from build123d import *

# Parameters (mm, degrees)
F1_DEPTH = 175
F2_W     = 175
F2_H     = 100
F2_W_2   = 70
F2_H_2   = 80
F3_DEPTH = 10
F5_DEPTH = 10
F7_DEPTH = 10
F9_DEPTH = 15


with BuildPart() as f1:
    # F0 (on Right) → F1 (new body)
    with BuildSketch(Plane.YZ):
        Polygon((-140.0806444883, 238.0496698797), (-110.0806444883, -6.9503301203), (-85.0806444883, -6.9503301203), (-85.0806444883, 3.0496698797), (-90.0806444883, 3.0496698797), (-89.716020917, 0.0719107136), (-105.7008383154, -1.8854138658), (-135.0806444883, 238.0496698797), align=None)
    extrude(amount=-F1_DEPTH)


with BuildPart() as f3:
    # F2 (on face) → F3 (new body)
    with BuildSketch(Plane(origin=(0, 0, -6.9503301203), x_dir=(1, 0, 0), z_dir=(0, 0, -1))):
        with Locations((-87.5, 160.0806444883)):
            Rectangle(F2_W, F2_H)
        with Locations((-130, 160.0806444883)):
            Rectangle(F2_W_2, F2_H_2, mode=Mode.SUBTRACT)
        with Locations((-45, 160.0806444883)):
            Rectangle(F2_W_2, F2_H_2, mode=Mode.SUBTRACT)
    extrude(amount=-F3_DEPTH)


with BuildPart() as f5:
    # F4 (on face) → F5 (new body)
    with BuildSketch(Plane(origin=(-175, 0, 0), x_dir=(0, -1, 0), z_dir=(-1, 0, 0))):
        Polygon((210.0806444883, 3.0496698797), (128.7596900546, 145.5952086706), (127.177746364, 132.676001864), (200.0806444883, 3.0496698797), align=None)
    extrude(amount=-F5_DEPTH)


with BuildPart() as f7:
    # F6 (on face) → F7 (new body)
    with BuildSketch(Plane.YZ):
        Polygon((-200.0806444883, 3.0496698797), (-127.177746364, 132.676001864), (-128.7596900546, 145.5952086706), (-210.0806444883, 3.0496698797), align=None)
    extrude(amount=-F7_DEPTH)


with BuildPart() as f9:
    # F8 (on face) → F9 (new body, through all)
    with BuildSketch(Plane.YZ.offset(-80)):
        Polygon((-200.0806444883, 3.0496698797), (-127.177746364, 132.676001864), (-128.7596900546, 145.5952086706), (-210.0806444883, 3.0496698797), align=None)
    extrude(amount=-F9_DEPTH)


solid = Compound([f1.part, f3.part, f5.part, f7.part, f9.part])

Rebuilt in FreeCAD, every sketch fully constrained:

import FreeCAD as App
import Part
import Sketcher

doc = App.newDocument("Part")
body = doc.addObject("PartDesign::Body", "Body")

sketch1 = body.newObject("Sketcher::SketchObject", "Sketch")
sketch1.AttachmentSupport = (doc.getObject("YZ_Plane"), [""])
sketch1.MapMode = "FlatFace"
sketch1.addGeometry([
    Part.LineSegment(App.Vector(-140.1, 238, 0), App.Vector(-110.1, -7, 0)),
    Part.LineSegment(App.Vector(-110.1, -7, 0), App.Vector(-85.1, -7, 0)),
    Part.LineSegment(App.Vector(-85.1, -7, 0), App.Vector(-85.1, 3, 0)),
    Part.LineSegment(App.Vector(-85.1, 3, 0), App.Vector(-90.1, 3, 0)),
    Part.LineSegment(App.Vector(-90.1, 3, 0), App.Vector(-89.7, 0.1, 0)),
    Part.LineSegment(App.Vector(-89.7, 0.1, 0), App.Vector(-105.7, -1.9, 0)),
    Part.LineSegment(App.Vector(-105.7, -1.9, 0), App.Vector(-135.1, 238, 0)),
    Part.LineSegment(App.Vector(-135.1, 238, 0), App.Vector(-140.1, 238, 0)),
], False)
sketch1.addConstraint([
    Sketcher.Constraint("Coincident", 0, 2, 1, 1),
    Sketcher.Constraint("Coincident", 1, 2, 2, 1),
    Sketcher.Constraint("Coincident", 2, 2, 3, 1),
    Sketcher.Constraint("Coincident", 3, 2, 4, 1),
    Sketcher.Constraint("Coincident", 4, 2, 5, 1),
    Sketcher.Constraint("Coincident", 5, 2, 6, 1),
    Sketcher.Constraint("Coincident", 6, 2, 7, 1),
    Sketcher.Constraint("Coincident", 7, 2, 0, 1),
    Sketcher.Constraint("Horizontal", 1),
    Sketcher.Constraint("Vertical", 2),
    Sketcher.Constraint("Horizontal", 3),
    Sketcher.Constraint("Horizontal", 7),
    Sketcher.Constraint("Parallel", 0, 4),
    Sketcher.Constraint("Perpendicular", 4, 5),
    Sketcher.Constraint("Perpendicular", 5, 6),
    Sketcher.Constraint("Equal", 3, 7),
    Sketcher.Constraint("DistanceX", 1, 1, 1, 2, 25.0),
    Sketcher.Constraint("DistanceX", 3, 2, 3, 1, 5.0),
    Sketcher.Constraint("DistanceY", 2, 1, 2, 2, 10.0),
    Sketcher.Constraint("Distance", 4, 3.0),
    Sketcher.Constraint("DistanceX", 6, 2, 3, 2, 45.0),
    Sketcher.Constraint("DistanceY", 3, 2, 6, 2, 235.0),
    Sketcher.Constraint("DistanceY", 0, 2, -1, 1, 6.95033),
    Sketcher.Constraint("DistanceX", 4, 2, -1, 1, 89.716021),
])
pad1 = body.newObject("PartDesign::Pad", "Pad")
pad1.Profile = sketch1
pad1.Length = 175
pad1.Reversed = True
body2 = doc.addObject("PartDesign::Body", "Body001")

sketch2 = body2.newObject("Sketcher::SketchObject", "Sketch001")
sketch2.AttachmentSupport = (doc.getObject("XY_Plane001"), [""])
sketch2.MapMode = "FlatFace"
sketch2.AttachmentOffset = App.Placement(App.Vector(0, 0, -6.95033), App.Rotation())
sketch2.addGeometry([
    Part.LineSegment(App.Vector(-175, -210, 0), App.Vector(-175, -110, 0)),
    Part.LineSegment(App.Vector(-175, -110, 0), App.Vector(0, -110, 0)),
    Part.LineSegment(App.Vector(0, -110, 0), App.Vector(0, -210, 0)),
    Part.LineSegment(App.Vector(0, -210, 0), App.Vector(-175, -210, 0)),
    Part.LineSegment(App.Vector(-95, -120, 0), App.Vector(-165, -120, 0)),
    Part.LineSegment(App.Vector(-165, -120, 0), App.Vector(-165, -200, 0)),
    Part.LineSegment(App.Vector(-165, -200, 0), App.Vector(-95, -200, 0)),
    Part.LineSegment(App.Vector(-95, -200, 0), App.Vector(-95, -120, 0)),
    Part.LineSegment(App.Vector(-10, -120, 0), App.Vector(-80, -120, 0)),
    Part.LineSegment(App.Vector(-80, -120, 0), App.Vector(-80, -200, 0)),
    Part.LineSegment(App.Vector(-80, -200, 0), App.Vector(-10, -200, 0)),
    Part.LineSegment(App.Vector(-10, -200, 0), App.Vector(-10, -120, 0)),
], False)
sketch2.addConstraint([
    Sketcher.Constraint("Coincident", 0, 2, 1, 1),
    Sketcher.Constraint("Coincident", 1, 2, 2, 1),
    Sketcher.Constraint("Coincident", 2, 2, 3, 1),
    Sketcher.Constraint("Coincident", 3, 2, 0, 1),
    Sketcher.Constraint("Coincident", 4, 2, 5, 1),
    Sketcher.Constraint("Coincident", 5, 2, 6, 1),
    Sketcher.Constraint("Coincident", 6, 2, 7, 1),
    Sketcher.Constraint("Coincident", 7, 2, 4, 1),
    Sketcher.Constraint("Coincident", 8, 2, 9, 1),
    Sketcher.Constraint("Coincident", 9, 2, 10, 1),
    Sketcher.Constraint("Coincident", 10, 2, 11, 1),
    Sketcher.Constraint("Coincident", 11, 2, 8, 1),
    Sketcher.Constraint("Vertical", 0),
    Sketcher.Constraint("Horizontal", 1),
    Sketcher.Constraint("Vertical", 2),
    Sketcher.Constraint("Horizontal", 3),
    Sketcher.Constraint("Horizontal", 4),
    Sketcher.Constraint("Vertical", 5),
    Sketcher.Constraint("Horizontal", 6),
    Sketcher.Constraint("Vertical", 7),
    Sketcher.Constraint("Horizontal", 8),
    Sketcher.Constraint("Vertical", 9),
    Sketcher.Constraint("Horizontal", 10),
    Sketcher.Constraint("Vertical", 11),
    Sketcher.Constraint("PointOnObject", 1, 2, -2),
    Sketcher.Constraint("Horizontal", 7, 2, 8, 2),
    Sketcher.Constraint("Horizontal", 6, 2, 9, 2),
    Sketcher.Constraint("Equal", 6, 8),
    Sketcher.Constraint("DistanceX", 1, 1, 1, 2, 175.0),
    Sketcher.Constraint("DistanceX", 4, 2, 4, 1, 70.0),
    Sketcher.Constraint("DistanceY", 0, 1, 0, 2, 100.0),
    Sketcher.Constraint("DistanceY", 5, 2, 5, 1, 80.0),
    Sketcher.Constraint("DistanceX", 4, 2, -1, 1, 165.0),
    Sketcher.Constraint("DistanceX", 8, 2, -1, 1, 80.0),
    Sketcher.Constraint("DistanceY", 4, 2, 0, 2, 10.0),
    Sketcher.Constraint("DistanceY", 0, 2, -1, 1, 110.080644),
])
pad2 = body2.newObject("PartDesign::Pad", "Pad001")
pad2.Profile = sketch2
pad2.Length = 10
body3 = doc.addObject("PartDesign::Body", "Body002")

sketch3 = body3.newObject("Sketcher::SketchObject", "Sketch002")
sketch3.AttachmentSupport = (doc.getObject("YZ_Plane002"), [""])
sketch3.MapMode = "FlatFace"
sketch3.AttachmentOffset = App.Placement(App.Vector(0, 0, -175), App.Rotation())
sketch3.addGeometry([
    Part.LineSegment(App.Vector(-210, 3, 0), App.Vector(-129, 146, 0)),
    Part.LineSegment(App.Vector(-129, 146, 0), App.Vector(-127, 133, 0)),
    Part.LineSegment(App.Vector(-127, 133, 0), App.Vector(-200, 3, 0)),
    Part.LineSegment(App.Vector(-200, 3, 0), App.Vector(-210, 3, 0)),
], False)
sketch3.addConstraint([
    Sketcher.Constraint("Coincident", 0, 2, 1, 1),
    Sketcher.Constraint("Coincident", 1, 2, 2, 1),
    Sketcher.Constraint("Coincident", 2, 2, 3, 1),
    Sketcher.Constraint("Coincident", 3, 2, 0, 1),
    Sketcher.Constraint("Horizontal", 3),
    Sketcher.Constraint("DistanceX", 3, 2, 3, 1, 10.0),
    Sketcher.Constraint("DistanceY", -1, 1, 1, 2, 132.676002),
    Sketcher.Constraint("Distance", 1, 13.0157),
    Sketcher.Constraint("DistanceX", 2, 2, 1, 2, 72.902898),
    Sketcher.Constraint("Distance", 0, 164.11072),
    Sketcher.Constraint("DistanceX", 0, 2, -1, 1, 128.75969),
    Sketcher.Constraint("DistanceY", -1, 1, 0, 2, 145.595209),
])
pad3 = body3.newObject("PartDesign::Pad", "Pad002")
pad3.Profile = sketch3
pad3.Length = 10
body4 = doc.addObject("PartDesign::Body", "Body003")

sketch4 = body4.newObject("Sketcher::SketchObject", "Sketch003")
sketch4.AttachmentSupport = (doc.getObject("YZ_Plane003"), [""])
sketch4.MapMode = "FlatFace"
sketch4.addGeometry([
    Part.LineSegment(App.Vector(-200, 3, 0), App.Vector(-127, 133, 0)),
    Part.LineSegment(App.Vector(-127, 133, 0), App.Vector(-129, 146, 0)),
    Part.LineSegment(App.Vector(-129, 146, 0), App.Vector(-210, 3, 0)),
    Part.LineSegment(App.Vector(-210, 3, 0), App.Vector(-200, 3, 0)),
], False)
sketch4.addConstraint([
    Sketcher.Constraint("Coincident", 0, 2, 1, 1),
    Sketcher.Constraint("Coincident", 1, 2, 2, 1),
    Sketcher.Constraint("Coincident", 2, 2, 3, 1),
    Sketcher.Constraint("Coincident", 3, 2, 0, 1),
    Sketcher.Constraint("Horizontal", 3),
    Sketcher.Constraint("DistanceX", 3, 1, 3, 2, 10.0),
    Sketcher.Constraint("DistanceY", -1, 1, 0, 2, 132.676002),
    Sketcher.Constraint("Distance", 1, 13.0157),
    Sketcher.Constraint("DistanceX", 2, 2, 0, 2, 82.902898),
    Sketcher.Constraint("Distance", 2, 164.11072),
    Sketcher.Constraint("DistanceX", 1, 2, -1, 1, 128.75969),
    Sketcher.Constraint("DistanceY", -1, 1, 1, 2, 145.595209),
])
pad4 = body4.newObject("PartDesign::Pad", "Pad003")
pad4.Profile = sketch4
pad4.Length = 10
pad4.Reversed = True
body5 = doc.addObject("PartDesign::Body", "Body004")

sketch5 = body5.newObject("Sketcher::SketchObject", "Sketch004")
sketch5.AttachmentSupport = (doc.getObject("YZ_Plane004"), [""])
sketch5.MapMode = "FlatFace"
sketch5.AttachmentOffset = App.Placement(App.Vector(0, 0, -80), App.Rotation())
sketch5.addGeometry([
    Part.LineSegment(App.Vector(-200, 3, 0), App.Vector(-127, 133, 0)),
    Part.LineSegment(App.Vector(-127, 133, 0), App.Vector(-129, 146, 0)),
    Part.LineSegment(App.Vector(-129, 146, 0), App.Vector(-210, 3, 0)),
    Part.LineSegment(App.Vector(-210, 3, 0), App.Vector(-200, 3, 0)),
], False)
sketch5.addConstraint([
    Sketcher.Constraint("Coincident", 0, 2, 1, 1),
    Sketcher.Constraint("Coincident", 1, 2, 2, 1),
    Sketcher.Constraint("Coincident", 2, 2, 3, 1),
    Sketcher.Constraint("Coincident", 3, 2, 0, 1),
    Sketcher.Constraint("Horizontal", 3),
    Sketcher.Constraint("DistanceX", 3, 1, 3, 2, 10.0),
    Sketcher.Constraint("DistanceY", -1, 1, 0, 2, 132.676002),
    Sketcher.Constraint("Distance", 1, 13.0157),
    Sketcher.Constraint("DistanceX", 2, 2, 0, 2, 82.902898),
    Sketcher.Constraint("Distance", 2, 164.11072),
    Sketcher.Constraint("DistanceX", 1, 2, -1, 1, 128.75969),
    Sketcher.Constraint("DistanceY", -1, 1, 1, 2, 145.595209),
])
pad5 = body5.newObject("PartDesign::Pad", "Pad004")
pad5.Profile = sketch5
pad5.Length = 15
pad5.Reversed = True

doc.recompute()
